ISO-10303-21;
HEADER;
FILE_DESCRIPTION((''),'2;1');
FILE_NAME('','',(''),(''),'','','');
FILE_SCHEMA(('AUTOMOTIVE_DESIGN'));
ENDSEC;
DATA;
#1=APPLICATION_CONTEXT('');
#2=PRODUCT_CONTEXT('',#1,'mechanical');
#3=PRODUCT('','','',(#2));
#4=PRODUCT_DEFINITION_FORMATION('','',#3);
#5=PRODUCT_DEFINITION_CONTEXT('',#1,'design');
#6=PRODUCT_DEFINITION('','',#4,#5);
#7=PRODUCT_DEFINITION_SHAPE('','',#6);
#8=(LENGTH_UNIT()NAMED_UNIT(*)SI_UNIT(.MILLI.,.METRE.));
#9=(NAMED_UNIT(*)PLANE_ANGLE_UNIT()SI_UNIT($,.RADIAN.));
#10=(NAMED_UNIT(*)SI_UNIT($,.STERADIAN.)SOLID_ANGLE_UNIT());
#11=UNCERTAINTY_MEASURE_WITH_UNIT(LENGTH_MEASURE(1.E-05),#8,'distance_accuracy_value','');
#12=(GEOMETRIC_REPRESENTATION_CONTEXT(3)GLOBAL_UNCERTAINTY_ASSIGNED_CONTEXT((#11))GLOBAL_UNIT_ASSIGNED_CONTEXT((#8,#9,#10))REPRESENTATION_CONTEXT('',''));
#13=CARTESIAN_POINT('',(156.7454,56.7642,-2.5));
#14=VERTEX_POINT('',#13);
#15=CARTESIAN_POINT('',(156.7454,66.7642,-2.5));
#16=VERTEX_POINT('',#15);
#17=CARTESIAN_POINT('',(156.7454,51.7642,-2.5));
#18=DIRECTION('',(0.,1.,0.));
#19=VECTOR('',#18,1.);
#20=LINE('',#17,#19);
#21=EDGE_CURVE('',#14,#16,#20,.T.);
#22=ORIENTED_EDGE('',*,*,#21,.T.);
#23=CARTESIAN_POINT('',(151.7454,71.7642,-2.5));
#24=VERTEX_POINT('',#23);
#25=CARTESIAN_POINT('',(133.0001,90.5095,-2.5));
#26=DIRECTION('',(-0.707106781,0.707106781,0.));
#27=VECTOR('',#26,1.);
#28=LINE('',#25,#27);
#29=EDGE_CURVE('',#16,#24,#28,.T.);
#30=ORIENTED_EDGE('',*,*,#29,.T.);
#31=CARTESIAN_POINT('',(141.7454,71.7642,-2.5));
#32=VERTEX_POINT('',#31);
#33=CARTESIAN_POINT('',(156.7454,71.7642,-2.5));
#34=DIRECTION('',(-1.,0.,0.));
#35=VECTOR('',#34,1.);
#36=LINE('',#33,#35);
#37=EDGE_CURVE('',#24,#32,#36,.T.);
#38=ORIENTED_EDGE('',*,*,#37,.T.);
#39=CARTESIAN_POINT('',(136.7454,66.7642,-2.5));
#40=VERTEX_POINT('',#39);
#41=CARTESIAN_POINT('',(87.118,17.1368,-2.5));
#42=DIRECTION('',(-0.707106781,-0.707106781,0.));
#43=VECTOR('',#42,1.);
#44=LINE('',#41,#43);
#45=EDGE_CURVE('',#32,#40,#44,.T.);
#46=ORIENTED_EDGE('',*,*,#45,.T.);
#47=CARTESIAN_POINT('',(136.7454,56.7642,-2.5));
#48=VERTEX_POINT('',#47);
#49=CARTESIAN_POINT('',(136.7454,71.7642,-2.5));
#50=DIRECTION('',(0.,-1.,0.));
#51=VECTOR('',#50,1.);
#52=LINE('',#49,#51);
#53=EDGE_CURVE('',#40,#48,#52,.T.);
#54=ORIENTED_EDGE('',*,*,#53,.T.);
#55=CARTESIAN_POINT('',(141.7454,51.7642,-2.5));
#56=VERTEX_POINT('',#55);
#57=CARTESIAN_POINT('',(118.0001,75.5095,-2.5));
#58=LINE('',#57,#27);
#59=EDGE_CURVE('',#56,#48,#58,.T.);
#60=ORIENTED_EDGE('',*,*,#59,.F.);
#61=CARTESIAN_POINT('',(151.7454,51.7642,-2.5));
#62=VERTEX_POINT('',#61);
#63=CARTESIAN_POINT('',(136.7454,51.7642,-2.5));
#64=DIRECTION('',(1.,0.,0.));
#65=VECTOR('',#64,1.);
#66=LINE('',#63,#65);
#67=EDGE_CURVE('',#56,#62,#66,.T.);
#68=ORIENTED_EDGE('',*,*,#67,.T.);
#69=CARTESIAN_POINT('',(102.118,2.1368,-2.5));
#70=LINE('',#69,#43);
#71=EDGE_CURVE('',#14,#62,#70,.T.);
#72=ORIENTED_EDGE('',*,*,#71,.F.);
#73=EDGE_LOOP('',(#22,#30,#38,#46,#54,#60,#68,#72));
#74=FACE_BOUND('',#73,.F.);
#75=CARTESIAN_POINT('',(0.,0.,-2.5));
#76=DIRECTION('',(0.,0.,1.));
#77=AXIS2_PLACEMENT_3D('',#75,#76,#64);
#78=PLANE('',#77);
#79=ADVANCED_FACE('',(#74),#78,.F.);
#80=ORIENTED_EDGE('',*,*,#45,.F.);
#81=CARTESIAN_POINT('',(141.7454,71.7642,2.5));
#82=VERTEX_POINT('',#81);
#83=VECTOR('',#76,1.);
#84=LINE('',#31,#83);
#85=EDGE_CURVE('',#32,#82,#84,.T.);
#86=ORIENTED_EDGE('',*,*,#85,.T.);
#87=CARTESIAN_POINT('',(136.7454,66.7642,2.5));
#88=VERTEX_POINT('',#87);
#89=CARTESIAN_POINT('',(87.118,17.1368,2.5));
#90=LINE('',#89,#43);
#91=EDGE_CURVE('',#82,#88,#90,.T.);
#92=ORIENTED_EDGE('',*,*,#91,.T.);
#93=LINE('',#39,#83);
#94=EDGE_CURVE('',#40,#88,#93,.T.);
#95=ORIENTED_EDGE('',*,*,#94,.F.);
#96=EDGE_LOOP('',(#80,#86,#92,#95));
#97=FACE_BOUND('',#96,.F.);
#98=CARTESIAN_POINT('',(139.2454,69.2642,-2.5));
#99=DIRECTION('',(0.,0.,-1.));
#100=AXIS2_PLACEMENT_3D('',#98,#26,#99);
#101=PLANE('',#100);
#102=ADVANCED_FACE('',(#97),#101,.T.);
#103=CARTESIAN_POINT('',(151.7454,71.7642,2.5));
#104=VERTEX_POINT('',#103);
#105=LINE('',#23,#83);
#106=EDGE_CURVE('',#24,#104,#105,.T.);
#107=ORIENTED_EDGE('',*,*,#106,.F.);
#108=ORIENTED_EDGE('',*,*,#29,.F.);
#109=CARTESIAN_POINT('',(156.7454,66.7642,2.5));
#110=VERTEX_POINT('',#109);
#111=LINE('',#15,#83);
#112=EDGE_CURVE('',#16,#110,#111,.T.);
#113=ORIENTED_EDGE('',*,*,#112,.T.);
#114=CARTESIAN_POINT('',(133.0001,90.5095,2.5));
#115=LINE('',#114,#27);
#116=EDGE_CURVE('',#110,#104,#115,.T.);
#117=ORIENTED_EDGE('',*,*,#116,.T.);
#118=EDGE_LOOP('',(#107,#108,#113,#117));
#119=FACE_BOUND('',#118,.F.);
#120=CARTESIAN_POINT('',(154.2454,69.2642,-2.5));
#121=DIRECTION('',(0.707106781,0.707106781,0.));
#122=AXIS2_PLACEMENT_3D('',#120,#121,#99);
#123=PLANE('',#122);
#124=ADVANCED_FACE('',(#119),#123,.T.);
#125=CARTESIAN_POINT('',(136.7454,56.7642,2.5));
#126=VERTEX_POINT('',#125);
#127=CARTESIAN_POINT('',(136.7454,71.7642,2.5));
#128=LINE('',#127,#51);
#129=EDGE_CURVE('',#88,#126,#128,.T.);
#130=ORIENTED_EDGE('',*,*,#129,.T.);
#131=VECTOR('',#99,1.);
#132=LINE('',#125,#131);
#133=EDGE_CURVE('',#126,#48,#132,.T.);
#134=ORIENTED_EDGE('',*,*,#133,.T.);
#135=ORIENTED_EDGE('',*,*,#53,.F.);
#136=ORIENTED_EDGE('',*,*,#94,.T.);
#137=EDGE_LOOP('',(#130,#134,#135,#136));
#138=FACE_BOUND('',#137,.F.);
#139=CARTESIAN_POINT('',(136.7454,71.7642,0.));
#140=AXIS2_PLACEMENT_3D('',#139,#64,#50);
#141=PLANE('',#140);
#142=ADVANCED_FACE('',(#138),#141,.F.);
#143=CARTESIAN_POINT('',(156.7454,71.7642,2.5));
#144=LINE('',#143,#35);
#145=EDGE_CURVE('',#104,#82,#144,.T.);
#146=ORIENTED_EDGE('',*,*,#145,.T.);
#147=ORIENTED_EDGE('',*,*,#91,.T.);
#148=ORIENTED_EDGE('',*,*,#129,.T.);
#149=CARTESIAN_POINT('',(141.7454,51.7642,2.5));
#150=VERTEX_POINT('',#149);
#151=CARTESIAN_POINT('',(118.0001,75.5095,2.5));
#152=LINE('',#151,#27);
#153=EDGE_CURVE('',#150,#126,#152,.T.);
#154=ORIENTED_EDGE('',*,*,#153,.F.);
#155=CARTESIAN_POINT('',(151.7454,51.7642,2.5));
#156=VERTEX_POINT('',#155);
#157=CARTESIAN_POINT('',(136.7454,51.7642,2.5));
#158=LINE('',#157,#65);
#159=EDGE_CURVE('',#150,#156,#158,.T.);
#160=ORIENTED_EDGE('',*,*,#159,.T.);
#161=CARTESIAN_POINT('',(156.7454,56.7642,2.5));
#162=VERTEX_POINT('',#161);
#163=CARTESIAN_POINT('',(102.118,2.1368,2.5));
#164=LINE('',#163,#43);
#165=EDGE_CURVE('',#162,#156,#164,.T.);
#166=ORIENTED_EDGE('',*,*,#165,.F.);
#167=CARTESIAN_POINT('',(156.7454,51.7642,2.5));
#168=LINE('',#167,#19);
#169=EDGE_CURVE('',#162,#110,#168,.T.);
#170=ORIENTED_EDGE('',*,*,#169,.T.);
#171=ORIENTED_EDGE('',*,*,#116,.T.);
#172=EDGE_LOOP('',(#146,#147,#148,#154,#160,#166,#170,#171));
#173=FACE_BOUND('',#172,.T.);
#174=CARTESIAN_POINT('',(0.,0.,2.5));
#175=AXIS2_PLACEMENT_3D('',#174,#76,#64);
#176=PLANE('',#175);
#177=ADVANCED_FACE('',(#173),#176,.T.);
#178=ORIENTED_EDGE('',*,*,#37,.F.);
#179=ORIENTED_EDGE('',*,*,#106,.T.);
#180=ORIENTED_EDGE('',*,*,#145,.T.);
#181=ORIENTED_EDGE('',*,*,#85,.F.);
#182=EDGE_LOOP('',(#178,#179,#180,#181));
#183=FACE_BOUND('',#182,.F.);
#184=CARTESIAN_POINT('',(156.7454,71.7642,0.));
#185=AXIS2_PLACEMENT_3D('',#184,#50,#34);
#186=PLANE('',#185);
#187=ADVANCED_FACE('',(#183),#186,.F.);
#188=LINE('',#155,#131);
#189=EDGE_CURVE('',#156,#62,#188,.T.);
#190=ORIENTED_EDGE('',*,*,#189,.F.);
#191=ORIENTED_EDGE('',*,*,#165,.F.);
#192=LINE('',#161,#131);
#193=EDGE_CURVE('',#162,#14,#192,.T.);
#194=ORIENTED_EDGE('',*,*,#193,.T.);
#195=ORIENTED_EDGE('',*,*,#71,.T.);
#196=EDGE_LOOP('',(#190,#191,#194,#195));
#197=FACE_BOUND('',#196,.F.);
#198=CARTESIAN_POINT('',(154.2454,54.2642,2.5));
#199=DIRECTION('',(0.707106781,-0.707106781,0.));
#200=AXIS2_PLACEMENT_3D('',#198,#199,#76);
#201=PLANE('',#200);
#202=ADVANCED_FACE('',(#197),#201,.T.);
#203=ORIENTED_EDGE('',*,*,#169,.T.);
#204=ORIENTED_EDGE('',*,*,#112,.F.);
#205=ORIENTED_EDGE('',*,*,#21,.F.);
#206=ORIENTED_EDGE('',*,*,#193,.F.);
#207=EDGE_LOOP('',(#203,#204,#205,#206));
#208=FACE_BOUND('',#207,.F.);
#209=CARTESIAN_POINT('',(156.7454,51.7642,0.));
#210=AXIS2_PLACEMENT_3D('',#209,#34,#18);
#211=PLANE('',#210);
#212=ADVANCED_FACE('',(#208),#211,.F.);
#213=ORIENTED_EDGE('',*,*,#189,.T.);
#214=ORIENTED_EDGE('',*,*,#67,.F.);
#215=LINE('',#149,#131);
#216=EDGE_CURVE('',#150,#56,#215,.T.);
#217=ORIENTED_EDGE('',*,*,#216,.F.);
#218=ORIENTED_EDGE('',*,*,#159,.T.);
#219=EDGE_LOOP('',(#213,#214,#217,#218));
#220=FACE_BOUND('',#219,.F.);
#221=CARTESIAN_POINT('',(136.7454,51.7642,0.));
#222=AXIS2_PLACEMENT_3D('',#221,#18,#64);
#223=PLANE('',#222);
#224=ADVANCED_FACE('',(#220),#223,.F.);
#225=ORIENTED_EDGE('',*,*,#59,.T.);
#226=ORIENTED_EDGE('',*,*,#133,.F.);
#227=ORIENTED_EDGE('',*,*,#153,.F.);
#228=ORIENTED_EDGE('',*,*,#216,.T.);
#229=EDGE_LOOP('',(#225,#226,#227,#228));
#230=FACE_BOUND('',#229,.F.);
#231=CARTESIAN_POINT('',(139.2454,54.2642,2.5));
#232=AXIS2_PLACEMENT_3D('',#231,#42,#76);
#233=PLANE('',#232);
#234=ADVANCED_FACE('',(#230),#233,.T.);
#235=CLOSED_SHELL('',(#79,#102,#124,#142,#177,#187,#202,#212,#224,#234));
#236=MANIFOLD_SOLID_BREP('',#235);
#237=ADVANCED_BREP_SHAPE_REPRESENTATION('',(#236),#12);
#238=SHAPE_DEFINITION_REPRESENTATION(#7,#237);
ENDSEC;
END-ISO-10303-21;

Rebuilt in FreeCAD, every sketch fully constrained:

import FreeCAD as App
import Part
import Sketcher

V = App.Vector
Q = App.Units.Quantity


def edges_at(feature, points):
    """Names of the edges that pass closest to the given points."""
    edges = feature.Shape.Edges
    near = lambda p: min(range(len(edges)), key=lambda i: edges[i].distToShape(Part.Vertex(*p))[0])
    return sorted({f"Edge{near(p) + 1}" for p in points})

doc = App.newDocument("Part")
body = doc.addObject("PartDesign::Body", "Body")

# Sketch on XY plane
sketch1 = body.newObject("Sketcher::SketchObject", "Sketch")
sketch1.AttachmentSupport = (doc.getObject("XY_Plane"), [""])
sketch1.MapMode = "FlatFace"
sketch1.addGeometry(Part.LineSegment(V(156.7454, 51.7642, 0), V(156.7454, 71.7642, 0)), False)
sketch1.addGeometry(Part.LineSegment(V(156.7454, 71.7642, 0), V(136.7454, 71.7642, 0)), False)
sketch1.addGeometry(Part.LineSegment(V(136.7454, 71.7642, 0), V(136.7454, 51.7642, 0)), False)
sketch1.addGeometry(Part.LineSegment(V(136.7454, 51.7642, 0), V(156.7454, 51.7642, 0)), False)
sketch1.addConstraint(Sketcher.Constraint("Coincident", 0, 2, 1, 1))
sketch1.addConstraint(Sketcher.Constraint("Coincident", 1, 2, 2, 1))
sketch1.addConstraint(Sketcher.Constraint("Coincident", 2, 2, 3, 1))
sketch1.addConstraint(Sketcher.Constraint("Coincident", 3, 2, 0, 1))
sketch1.addConstraint(Sketcher.Constraint("Vertical", 0))
sketch1.addConstraint(Sketcher.Constraint("Horizontal", 1))
sketch1.addConstraint(Sketcher.Constraint("Vertical", 2))
sketch1.addConstraint(Sketcher.Constraint("Horizontal", 3))
sketch1.addConstraint(Sketcher.Constraint("Equal", 3, 0))
sketch1.addConstraint(Sketcher.Constraint("DistanceX", 1, 2, 1, 1, Q("20 mm")))
sketch1.addConstraint(Sketcher.Constraint("DistanceX", -1, 1, 0, 2, Q("156.7454 mm")))
sketch1.addConstraint(Sketcher.Constraint("DistanceY", -1, 1, 0, 2, Q("71.7642 mm")))
pad1 = body.newObject("PartDesign::Pad", "Pad")
pad1.Profile = sketch1
pad1.Length = 5
pad1.Midplane = True
doc.recompute()

chamfer = body.newObject("PartDesign::Chamfer", "Chamfer")
chamfer.Base = (pad1, edges_at(pad1, [
    (156.745, 71.764, 0),
    (136.745, 71.764, 0),
    (136.745, 51.764, 0),
    (156.745, 51.764, 0),
]))
chamfer.Size = 5

doc.recompute()
